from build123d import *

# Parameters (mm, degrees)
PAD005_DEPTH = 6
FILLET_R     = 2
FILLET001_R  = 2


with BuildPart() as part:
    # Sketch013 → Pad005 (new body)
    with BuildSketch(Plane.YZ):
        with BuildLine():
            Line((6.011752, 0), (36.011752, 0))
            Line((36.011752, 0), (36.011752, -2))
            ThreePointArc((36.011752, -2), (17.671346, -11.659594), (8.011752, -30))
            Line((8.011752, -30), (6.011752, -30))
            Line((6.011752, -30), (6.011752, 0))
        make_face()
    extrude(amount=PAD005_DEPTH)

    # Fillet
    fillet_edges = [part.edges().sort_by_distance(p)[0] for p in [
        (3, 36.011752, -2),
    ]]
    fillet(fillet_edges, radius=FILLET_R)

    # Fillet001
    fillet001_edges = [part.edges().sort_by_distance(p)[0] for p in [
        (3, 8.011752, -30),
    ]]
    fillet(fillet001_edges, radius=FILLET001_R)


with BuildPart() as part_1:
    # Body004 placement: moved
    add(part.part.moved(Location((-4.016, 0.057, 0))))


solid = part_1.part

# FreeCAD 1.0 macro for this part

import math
import FreeCAD as App
import Part
import Sketcher

V = App.Vector


def edges_at(feature, points):
    """Names of the edges that pass closest to the given points."""
    edges = feature.Shape.Edges
    near = lambda p: min(range(len(edges)), key=lambda i: edges[i].distToShape(Part.Vertex(*p))[0])
    return sorted({f"Edge{near(p) + 1}" for p in points})

doc = App.newDocument("Part")
body = doc.addObject("PartDesign::Body", "Body")

# Sketch on YZ plane
sketch1 = body.newObject("Sketcher::SketchObject", "Sketch")
sketch1.AttachmentSupport = (doc.getObject("YZ_Plane"), [""])
sketch1.MapMode = "FlatFace"
sketch1.addGeometry(Part.LineSegment(V(36.011752, 0, 0), V(6.011752, 0, 0)), False)
sketch1.addGeometry(Part.LineSegment(V(6.011752, 0, 0), V(6.011752, -30, 0)), False)
sketch1.addGeometry(Part.LineSegment(V(6.011752, -30, 0), V(8.011752, -30, 0)), False)
sketch1.addGeometry(Part.ArcOfCircle(Part.Circle(V(42.420082, -36.40833, 0), V(0, 0, 1), 34.999998), math.radians(100.550096), math.radians(169.449904)), False)
sketch1.addGeometry(Part.LineSegment(V(36.011752, -2, 0), V(36.011752, 0, 0)), False)
sketch1.addConstraint(Sketcher.Constraint("Coincident", 0, 2, 1, 1))
sketch1.addConstraint(Sketcher.Constraint("Coincident", 1, 2, 2, 1))
sketch1.addConstraint(Sketcher.Constraint("Coincident", 2, 2, 3, 2))
sketch1.addConstraint(Sketcher.Constraint("Coincident", 3, 1, 4, 1))
sketch1.addConstraint(Sketcher.Constraint("Coincident", 4, 2, 0, 1))
sketch1.addConstraint(Sketcher.Constraint("Horizontal", 0))
sketch1.addConstraint(Sketcher.Constraint("Vertical", 1))
sketch1.addConstraint(Sketcher.Constraint("Horizontal", 2))
sketch1.addConstraint(Sketcher.Constraint("Vertical", 4))
sketch1.addConstraint(Sketcher.Constraint("PointOnObject", 0, 2, -1))
sketch1.addConstraint(Sketcher.Constraint("Equal", 0, 1))
sketch1.addConstraint(Sketcher.Constraint("Equal", 2, 4))
sketch1.addConstraint(Sketcher.Constraint("Radius", 3, 34.999998))
sketch1.addConstraint(Sketcher.Constraint("DistanceX", 0, 2, 0, 1, 30.0))
sketch1.addConstraint(Sketcher.Constraint("DistanceX", 2, 1, 2, 2, 2.0))
sketch1.addConstraint(Sketcher.Constraint("DistanceX", -1, 1, 3, 3, 42.420082))
pad1 = body.newObject("PartDesign::Pad", "Pad")
pad1.Profile = sketch1
pad1.Length = 6
doc.recompute()

fillet = body.newObject("PartDesign::Fillet", "Fillet")
fillet.Base = (pad1, edges_at(pad1, [(3, 36.012, -2)]))
fillet.Radius = 2
doc.recompute()

fillet2 = body.newObject("PartDesign::Fillet", "Fillet001")
fillet2.Base = (fillet, edges_at(fillet, [(3, 8.012, -30)]))
fillet2.Radius = 2
body2 = doc.addObject("PartDesign::Body", "Body001")
doc.recompute()

body.Placement = App.Placement(V(-4.016, 0.057, 0), App.Rotation(V(0, 0, 1), 0))
boolean = body2.newObject("PartDesign::Boolean", "Boolean")
boolean.Type = "Fuse"
boolean.addObjects([body])

doc.recompute()
